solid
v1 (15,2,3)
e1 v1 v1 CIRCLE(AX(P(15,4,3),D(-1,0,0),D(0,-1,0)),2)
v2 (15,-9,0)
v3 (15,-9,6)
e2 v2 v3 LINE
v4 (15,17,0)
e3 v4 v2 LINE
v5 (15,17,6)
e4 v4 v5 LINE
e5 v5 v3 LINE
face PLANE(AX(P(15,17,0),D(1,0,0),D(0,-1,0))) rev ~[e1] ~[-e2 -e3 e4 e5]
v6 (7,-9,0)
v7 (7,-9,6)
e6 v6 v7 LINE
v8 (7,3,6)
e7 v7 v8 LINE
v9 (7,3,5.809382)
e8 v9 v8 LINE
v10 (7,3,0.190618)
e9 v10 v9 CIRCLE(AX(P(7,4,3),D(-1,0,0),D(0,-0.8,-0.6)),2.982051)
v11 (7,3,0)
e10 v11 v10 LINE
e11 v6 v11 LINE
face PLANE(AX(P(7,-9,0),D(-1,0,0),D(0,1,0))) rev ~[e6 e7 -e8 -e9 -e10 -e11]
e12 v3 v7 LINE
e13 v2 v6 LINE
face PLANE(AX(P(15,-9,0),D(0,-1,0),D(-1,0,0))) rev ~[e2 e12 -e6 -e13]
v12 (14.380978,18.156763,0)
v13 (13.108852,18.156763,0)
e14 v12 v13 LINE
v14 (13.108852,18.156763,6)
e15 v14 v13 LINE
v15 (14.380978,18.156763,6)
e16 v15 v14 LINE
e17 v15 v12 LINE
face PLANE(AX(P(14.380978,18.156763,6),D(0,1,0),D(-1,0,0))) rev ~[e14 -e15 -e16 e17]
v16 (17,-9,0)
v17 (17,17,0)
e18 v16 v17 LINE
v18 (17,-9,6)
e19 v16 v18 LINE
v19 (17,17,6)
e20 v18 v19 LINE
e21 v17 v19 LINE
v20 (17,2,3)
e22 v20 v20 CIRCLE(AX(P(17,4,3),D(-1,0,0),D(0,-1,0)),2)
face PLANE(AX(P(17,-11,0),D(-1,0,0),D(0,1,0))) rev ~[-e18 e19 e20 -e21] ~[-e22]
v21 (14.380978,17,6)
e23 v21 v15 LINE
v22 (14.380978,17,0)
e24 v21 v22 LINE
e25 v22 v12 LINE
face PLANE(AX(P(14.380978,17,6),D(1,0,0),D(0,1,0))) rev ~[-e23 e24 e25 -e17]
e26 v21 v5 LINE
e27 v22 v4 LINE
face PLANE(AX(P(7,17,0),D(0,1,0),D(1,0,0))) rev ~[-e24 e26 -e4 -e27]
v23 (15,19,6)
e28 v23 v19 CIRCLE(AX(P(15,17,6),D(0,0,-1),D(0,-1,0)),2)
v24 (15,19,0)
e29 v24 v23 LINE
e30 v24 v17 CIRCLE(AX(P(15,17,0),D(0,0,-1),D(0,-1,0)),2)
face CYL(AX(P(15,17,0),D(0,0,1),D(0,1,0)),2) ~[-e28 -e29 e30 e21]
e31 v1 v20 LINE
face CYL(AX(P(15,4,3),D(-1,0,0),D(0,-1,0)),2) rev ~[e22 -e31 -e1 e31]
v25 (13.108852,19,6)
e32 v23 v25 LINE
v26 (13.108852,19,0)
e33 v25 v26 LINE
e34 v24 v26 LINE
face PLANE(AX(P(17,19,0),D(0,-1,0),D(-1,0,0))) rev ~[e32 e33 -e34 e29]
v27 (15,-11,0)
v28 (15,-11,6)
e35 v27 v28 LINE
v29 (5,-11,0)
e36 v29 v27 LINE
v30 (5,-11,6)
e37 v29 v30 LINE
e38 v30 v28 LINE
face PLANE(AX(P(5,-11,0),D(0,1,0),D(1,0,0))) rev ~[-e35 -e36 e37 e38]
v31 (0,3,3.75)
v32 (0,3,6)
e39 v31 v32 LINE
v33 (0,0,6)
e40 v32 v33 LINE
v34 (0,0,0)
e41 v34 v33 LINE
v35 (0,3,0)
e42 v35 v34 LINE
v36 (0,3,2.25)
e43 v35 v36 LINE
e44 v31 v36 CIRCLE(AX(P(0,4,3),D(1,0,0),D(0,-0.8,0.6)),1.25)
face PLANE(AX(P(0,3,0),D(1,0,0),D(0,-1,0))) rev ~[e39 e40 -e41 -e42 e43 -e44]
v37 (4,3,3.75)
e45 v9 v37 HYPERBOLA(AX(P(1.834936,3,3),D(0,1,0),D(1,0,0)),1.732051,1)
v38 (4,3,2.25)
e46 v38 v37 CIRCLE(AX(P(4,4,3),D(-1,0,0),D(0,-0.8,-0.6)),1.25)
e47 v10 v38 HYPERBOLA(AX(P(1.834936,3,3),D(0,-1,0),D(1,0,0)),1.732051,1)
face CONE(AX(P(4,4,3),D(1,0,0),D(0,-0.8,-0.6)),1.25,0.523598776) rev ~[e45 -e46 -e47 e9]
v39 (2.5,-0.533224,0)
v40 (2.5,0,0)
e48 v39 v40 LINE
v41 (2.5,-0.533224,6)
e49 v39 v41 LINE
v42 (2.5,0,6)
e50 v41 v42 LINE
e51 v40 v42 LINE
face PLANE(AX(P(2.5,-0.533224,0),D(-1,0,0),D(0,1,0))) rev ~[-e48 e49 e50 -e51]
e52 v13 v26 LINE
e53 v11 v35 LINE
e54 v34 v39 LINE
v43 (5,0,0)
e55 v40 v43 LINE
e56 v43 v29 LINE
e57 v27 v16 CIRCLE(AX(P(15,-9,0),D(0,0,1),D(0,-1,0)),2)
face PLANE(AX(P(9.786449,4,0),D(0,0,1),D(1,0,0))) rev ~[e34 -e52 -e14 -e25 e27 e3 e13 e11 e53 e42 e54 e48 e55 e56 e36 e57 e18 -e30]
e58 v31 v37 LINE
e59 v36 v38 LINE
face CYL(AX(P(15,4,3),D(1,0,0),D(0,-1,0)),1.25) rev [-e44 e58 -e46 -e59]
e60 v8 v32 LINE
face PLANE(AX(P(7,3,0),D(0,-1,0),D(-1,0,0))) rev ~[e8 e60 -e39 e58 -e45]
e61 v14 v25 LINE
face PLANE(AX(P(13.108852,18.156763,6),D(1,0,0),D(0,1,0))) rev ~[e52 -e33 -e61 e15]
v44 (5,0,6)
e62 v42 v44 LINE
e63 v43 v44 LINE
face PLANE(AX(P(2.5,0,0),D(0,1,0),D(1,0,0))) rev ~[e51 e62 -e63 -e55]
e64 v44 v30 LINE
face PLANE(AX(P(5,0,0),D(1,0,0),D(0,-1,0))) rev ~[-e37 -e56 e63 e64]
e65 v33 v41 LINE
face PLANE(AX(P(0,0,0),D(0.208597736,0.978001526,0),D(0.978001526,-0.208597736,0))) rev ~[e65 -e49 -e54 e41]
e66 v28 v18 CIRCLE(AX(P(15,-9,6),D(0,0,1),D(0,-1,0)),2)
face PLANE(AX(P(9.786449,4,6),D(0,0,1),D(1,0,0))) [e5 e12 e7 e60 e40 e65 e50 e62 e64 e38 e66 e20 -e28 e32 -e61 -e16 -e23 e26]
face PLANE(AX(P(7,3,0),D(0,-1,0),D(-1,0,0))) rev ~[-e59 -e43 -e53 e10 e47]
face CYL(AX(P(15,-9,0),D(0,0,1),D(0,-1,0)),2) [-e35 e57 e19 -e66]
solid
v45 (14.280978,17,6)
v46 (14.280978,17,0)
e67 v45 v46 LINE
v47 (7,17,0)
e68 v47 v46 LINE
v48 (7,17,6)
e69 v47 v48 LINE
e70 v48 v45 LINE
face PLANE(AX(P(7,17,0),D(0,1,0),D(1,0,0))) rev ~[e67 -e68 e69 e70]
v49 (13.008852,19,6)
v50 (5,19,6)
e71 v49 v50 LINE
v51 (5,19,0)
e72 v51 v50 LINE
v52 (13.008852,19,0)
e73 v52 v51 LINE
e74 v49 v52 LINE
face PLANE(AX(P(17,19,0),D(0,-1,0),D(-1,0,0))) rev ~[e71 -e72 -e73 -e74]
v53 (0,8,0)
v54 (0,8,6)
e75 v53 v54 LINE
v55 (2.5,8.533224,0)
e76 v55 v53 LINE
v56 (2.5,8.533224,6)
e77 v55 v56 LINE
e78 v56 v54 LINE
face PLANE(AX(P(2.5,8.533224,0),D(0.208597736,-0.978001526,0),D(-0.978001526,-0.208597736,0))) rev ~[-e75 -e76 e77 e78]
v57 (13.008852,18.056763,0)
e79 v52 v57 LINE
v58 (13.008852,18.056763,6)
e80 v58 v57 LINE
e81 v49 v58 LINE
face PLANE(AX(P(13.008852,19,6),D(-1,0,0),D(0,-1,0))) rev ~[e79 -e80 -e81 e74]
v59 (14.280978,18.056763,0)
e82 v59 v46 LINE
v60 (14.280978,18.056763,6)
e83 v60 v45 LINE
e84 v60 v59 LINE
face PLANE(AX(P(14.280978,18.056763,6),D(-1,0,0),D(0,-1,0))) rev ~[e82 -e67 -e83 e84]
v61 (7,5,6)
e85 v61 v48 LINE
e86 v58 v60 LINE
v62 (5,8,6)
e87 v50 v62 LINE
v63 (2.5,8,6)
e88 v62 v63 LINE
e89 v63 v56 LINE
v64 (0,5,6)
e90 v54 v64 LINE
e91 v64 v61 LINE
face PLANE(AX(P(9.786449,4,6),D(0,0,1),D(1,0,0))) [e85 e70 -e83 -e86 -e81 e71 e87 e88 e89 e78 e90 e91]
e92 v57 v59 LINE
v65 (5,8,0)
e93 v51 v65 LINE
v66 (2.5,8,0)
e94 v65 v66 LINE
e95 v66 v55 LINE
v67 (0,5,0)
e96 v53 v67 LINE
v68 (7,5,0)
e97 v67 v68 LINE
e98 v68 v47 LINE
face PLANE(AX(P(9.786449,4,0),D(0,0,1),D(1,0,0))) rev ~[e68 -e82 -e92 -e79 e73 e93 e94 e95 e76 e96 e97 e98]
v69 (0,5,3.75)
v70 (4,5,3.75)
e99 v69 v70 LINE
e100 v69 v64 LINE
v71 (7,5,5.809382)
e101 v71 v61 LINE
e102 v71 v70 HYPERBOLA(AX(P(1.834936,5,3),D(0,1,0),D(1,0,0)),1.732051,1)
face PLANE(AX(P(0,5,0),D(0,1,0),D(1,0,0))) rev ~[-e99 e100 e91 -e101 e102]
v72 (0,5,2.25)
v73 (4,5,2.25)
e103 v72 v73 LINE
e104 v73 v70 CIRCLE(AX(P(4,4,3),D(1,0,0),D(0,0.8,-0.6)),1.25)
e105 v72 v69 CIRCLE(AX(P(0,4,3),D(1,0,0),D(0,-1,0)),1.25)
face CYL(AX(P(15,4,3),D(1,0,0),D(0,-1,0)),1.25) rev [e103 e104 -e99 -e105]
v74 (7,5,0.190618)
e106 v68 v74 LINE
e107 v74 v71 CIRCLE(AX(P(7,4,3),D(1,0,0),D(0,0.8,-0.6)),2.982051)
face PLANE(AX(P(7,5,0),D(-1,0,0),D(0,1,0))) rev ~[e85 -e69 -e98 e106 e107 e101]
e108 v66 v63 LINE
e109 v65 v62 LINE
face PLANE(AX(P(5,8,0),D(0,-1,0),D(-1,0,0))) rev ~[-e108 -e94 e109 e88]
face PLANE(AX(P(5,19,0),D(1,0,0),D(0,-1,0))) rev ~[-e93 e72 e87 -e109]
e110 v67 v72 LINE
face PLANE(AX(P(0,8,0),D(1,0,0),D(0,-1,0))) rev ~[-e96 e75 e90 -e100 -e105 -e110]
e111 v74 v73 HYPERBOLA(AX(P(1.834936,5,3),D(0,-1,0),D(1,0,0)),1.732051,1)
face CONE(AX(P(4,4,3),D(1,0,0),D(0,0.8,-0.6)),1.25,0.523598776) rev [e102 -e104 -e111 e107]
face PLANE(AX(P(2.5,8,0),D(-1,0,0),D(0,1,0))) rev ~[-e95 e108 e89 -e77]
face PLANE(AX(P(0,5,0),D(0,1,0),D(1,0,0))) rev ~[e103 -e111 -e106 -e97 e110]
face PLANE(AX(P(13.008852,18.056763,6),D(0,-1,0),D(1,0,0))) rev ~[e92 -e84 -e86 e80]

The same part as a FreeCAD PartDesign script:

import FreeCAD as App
import Part
import Sketcher

V = App.Vector


def edges_at(feature, points):
    """Names of the edges that pass closest to the given points."""
    edges = feature.Shape.Edges
    near = lambda p: min(range(len(edges)), key=lambda i: edges[i].distToShape(Part.Vertex(*p))[0])
    return sorted({f"Edge{near(p) + 1}" for p in points})


def add_polygon(sketch, points):
    """Adds a closed chain of lines whose ends are joined by coincident constraints."""
    first, n = sketch.GeometryCount, len(points)
    for a, b in zip(points, points[1:] + points[:1]):
        sketch.addGeometry(Part.LineSegment(App.Vector(*a, 0), App.Vector(*b, 0)), False)
    for i in range(n):
        sketch.addConstraint(Sketcher.Constraint("Coincident", first + i, 2, first + (i + 1) % n, 1))

doc = App.newDocument("Part")
body = doc.addObject("PartDesign::Body", "Body")
body.AllowCompound = True

sketch1 = body.newObject("Sketcher::SketchObject", "Sketch")
sketch1.AttachmentSupport = (doc.getObject("XY_Plane"), [""])
sketch1.MapMode = "FlatFace"
add_polygon(sketch1, [(5, 8), (2.5, 8), (2.5, 8.533224), (0, 8), (0, 5), (7, 5), (7, 17), (15, 17), (15, -9), (7, -9), (7, 3), (0, 3), (0, 0), (2.5, -0.533224), (2.5, 0), (5, 0), (5, -11), (17, -11), (17, 19), (5, 19)])
sketch1.addConstraint([
    Sketcher.Constraint("Horizontal", 0),
    Sketcher.Constraint("Vertical", 1),
    Sketcher.Constraint("Vertical", 3),
    Sketcher.Constraint("Horizontal", 4),
    Sketcher.Constraint("Vertical", 5),
    Sketcher.Constraint("Horizontal", 6),
    Sketcher.Constraint("Vertical", 7),
    Sketcher.Constraint("Horizontal", 8),
    Sketcher.Constraint("Vertical", 9),
    Sketcher.Constraint("Horizontal", 10),
    Sketcher.Constraint("Vertical", 11),
    Sketcher.Constraint("Vertical", 13),
    Sketcher.Constraint("Horizontal", 14),
    Sketcher.Constraint("Vertical", 15),
    Sketcher.Constraint("Horizontal", 16),
    Sketcher.Constraint("Vertical", 17),
    Sketcher.Constraint("Horizontal", 18),
    Sketcher.Constraint("Vertical", 19),
    Sketcher.Constraint("Coincident", 11, 2, -1, 1),
    Sketcher.Constraint("PointOnObject", 2, 2, -2),
    Sketcher.Constraint("PointOnObject", 13, 2, -1),
    Sketcher.Constraint("Horizontal", 0, 2, 2, 2),
    Sketcher.Constraint("Vertical", 5, 2, 8, 2),
    Sketcher.Constraint("Vertical", 1, 2, 12, 2),
    Sketcher.Constraint("Vertical", 15, 2, 18, 2),
    Sketcher.Constraint("Equal", 18, 5),
    Sketcher.Constraint("Equal", 5, 9),
    Sketcher.Constraint("Equal", 3, 11),
    Sketcher.Constraint("Equal", 1, 13),
    Sketcher.Constraint("Equal", 15, 19),
    Sketcher.Constraint("DistanceX", 4, 1, 4, 2, 7.0),
    Sketcher.Constraint("DistanceX", 6, 1, 6, 2, 8.0),
    Sketcher.Constraint("DistanceX", 16, 1, 16, 2, 12.0),
    Sketcher.Constraint("DistanceY", 3, 2, 3, 1, 3.0),
    Sketcher.Constraint("DistanceY", 7, 2, 7, 1, 26.0),
    Sketcher.Constraint("DistanceY", 15, 2, 15, 1, 11.0),
    Sketcher.Constraint("DistanceX", 0, 2, 0, 1, 2.5),
    Sketcher.Constraint("DistanceX", -1, 1, 14, 2, 5.0),
    Sketcher.Constraint("DistanceY", 1, 1, 1, 2, 0.533224),
])
pad1 = body.newObject("PartDesign::Pad", "Pad")
pad1.Profile = sketch1
pad1.Length = 6

sketch2 = body.newObject("Sketcher::SketchObject", "Sketch001")
sketch2.AttachmentSupport = (doc.getObject("YZ_Plane"), [""])
sketch2.MapMode = "FlatFace"
sketch2.AttachmentOffset = App.Placement(V(0, 0, 15), App.Rotation())
sketch2.addGeometry(Part.Circle(V(4, 3, 0), V(0, 0, 1), 1.25), False)
sketch2.addConstraint([
    Sketcher.Constraint("Diameter", 0, 2.5),
    Sketcher.Constraint("DistanceX", -1, 1, 0, 3, 4.0),
    Sketcher.Constraint("DistanceY", -1, 1, 0, 3, 3.0),
])
pocket1 = body.newObject("PartDesign::Pocket", "Pocket")
pocket1.Profile = sketch2
pocket1.Length = 25

sketch3 = body.newObject("Sketcher::SketchObject", "Sketch002")
sketch3.AttachmentSupport = (doc.getObject("YZ_Plane"), [""])
sketch3.MapMode = "FlatFace"
sketch3.AttachmentOffset = App.Placement(V(0, 0, 15), App.Rotation())
sketch3.addGeometry(Part.Circle(V(4, 3, 0), V(0, 0, 1), 2), False)
sketch3.addConstraint([
    Sketcher.Constraint("Diameter", 0, 4.0),
    Sketcher.Constraint("DistanceX", -1, 1, 0, 3, 4.0),
    Sketcher.Constraint("DistanceY", -1, 1, 0, 3, 3.0),
])
pocket2 = body.newObject("PartDesign::Pocket", "Pocket001")
pocket2.Profile = sketch3
pocket2.Length = 25
pocket2.Reversed = True
doc.recompute()

fillet = body.newObject("PartDesign::Fillet", "Fillet")
fillet.Base = (pocket2, edges_at(pocket2, [(17, 19, 3), (17, -11, 3)]))
fillet.Radius = 2
doc.recompute()

chamfer = body.newObject("PartDesign::Chamfer", "Chamfer")
chamfer.Base = (fillet, edges_at(fillet, [(7, 5.25, 3)]))
chamfer.ChamferType = "Two distances"
chamfer.Size = 1.732051
chamfer.Size2 = 3
doc.recompute()

chamfer2 = body.newObject("PartDesign::Chamfer", "Chamfer001")
chamfer2.Base = (chamfer, edges_at(chamfer, [(7, 2.75, 3)]))
chamfer2.ChamferType = "Two distances"
chamfer2.Size = 1.732051
chamfer2.Size2 = 3

sketch4 = body.newObject("Sketcher::SketchObject", "Sketch003")
sketch4.AttachmentSupport = (doc.getObject("XY_Plane"), [""])
sketch4.MapMode = "FlatFace"
sketch4.AttachmentOffset = App.Placement(V(0, 0, 6), App.Rotation())
add_polygon(sketch4, [(13.108852, 19), (13.008852, 19), (13.008852, 18.056763), (14.280978, 18.056763), (14.280978, 17), (14.380978, 17), (14.380978, 18.156763), (13.108852, 18.156763)])
sketch4.addConstraint([
    Sketcher.Constraint("Horizontal", 0),
    Sketcher.Constraint("Vertical", 1),
    Sketcher.Constraint("Horizontal", 2),
    Sketcher.Constraint("Vertical", 3),
    Sketcher.Constraint("Horizontal", 4),
    Sketcher.Constraint("Vertical", 5),
    Sketcher.Constraint("Horizontal", 6),
    Sketcher.Constraint("Vertical", 7),
    Sketcher.Constraint("Equal", 0, 4),
    Sketcher.Constraint("DistanceX", 0, 2, 0, 1, 0.1),
    Sketcher.Constraint("DistanceY", -1, 1, 0, 2, 19.0),
    Sketcher.Constraint("DistanceY", -1, 1, 3, 2, 17.0),
    Sketcher.Constraint("DistanceY", 2, 2, 5, 2, 0.1),
    Sketcher.Constraint("DistanceX", 2, 1, 2, 2, 1.272125),
    Sketcher.Constraint("DistanceY", 1, 2, 1, 1, 0.943237),
    Sketcher.Constraint("DistanceX", -1, 1, 0, 2, 13.008852),
])
pocket3 = body.newObject("PartDesign::Pocket", "Pocket002")
pocket3.Profile = sketch4
pocket3.Length = 25

doc.recompute()
